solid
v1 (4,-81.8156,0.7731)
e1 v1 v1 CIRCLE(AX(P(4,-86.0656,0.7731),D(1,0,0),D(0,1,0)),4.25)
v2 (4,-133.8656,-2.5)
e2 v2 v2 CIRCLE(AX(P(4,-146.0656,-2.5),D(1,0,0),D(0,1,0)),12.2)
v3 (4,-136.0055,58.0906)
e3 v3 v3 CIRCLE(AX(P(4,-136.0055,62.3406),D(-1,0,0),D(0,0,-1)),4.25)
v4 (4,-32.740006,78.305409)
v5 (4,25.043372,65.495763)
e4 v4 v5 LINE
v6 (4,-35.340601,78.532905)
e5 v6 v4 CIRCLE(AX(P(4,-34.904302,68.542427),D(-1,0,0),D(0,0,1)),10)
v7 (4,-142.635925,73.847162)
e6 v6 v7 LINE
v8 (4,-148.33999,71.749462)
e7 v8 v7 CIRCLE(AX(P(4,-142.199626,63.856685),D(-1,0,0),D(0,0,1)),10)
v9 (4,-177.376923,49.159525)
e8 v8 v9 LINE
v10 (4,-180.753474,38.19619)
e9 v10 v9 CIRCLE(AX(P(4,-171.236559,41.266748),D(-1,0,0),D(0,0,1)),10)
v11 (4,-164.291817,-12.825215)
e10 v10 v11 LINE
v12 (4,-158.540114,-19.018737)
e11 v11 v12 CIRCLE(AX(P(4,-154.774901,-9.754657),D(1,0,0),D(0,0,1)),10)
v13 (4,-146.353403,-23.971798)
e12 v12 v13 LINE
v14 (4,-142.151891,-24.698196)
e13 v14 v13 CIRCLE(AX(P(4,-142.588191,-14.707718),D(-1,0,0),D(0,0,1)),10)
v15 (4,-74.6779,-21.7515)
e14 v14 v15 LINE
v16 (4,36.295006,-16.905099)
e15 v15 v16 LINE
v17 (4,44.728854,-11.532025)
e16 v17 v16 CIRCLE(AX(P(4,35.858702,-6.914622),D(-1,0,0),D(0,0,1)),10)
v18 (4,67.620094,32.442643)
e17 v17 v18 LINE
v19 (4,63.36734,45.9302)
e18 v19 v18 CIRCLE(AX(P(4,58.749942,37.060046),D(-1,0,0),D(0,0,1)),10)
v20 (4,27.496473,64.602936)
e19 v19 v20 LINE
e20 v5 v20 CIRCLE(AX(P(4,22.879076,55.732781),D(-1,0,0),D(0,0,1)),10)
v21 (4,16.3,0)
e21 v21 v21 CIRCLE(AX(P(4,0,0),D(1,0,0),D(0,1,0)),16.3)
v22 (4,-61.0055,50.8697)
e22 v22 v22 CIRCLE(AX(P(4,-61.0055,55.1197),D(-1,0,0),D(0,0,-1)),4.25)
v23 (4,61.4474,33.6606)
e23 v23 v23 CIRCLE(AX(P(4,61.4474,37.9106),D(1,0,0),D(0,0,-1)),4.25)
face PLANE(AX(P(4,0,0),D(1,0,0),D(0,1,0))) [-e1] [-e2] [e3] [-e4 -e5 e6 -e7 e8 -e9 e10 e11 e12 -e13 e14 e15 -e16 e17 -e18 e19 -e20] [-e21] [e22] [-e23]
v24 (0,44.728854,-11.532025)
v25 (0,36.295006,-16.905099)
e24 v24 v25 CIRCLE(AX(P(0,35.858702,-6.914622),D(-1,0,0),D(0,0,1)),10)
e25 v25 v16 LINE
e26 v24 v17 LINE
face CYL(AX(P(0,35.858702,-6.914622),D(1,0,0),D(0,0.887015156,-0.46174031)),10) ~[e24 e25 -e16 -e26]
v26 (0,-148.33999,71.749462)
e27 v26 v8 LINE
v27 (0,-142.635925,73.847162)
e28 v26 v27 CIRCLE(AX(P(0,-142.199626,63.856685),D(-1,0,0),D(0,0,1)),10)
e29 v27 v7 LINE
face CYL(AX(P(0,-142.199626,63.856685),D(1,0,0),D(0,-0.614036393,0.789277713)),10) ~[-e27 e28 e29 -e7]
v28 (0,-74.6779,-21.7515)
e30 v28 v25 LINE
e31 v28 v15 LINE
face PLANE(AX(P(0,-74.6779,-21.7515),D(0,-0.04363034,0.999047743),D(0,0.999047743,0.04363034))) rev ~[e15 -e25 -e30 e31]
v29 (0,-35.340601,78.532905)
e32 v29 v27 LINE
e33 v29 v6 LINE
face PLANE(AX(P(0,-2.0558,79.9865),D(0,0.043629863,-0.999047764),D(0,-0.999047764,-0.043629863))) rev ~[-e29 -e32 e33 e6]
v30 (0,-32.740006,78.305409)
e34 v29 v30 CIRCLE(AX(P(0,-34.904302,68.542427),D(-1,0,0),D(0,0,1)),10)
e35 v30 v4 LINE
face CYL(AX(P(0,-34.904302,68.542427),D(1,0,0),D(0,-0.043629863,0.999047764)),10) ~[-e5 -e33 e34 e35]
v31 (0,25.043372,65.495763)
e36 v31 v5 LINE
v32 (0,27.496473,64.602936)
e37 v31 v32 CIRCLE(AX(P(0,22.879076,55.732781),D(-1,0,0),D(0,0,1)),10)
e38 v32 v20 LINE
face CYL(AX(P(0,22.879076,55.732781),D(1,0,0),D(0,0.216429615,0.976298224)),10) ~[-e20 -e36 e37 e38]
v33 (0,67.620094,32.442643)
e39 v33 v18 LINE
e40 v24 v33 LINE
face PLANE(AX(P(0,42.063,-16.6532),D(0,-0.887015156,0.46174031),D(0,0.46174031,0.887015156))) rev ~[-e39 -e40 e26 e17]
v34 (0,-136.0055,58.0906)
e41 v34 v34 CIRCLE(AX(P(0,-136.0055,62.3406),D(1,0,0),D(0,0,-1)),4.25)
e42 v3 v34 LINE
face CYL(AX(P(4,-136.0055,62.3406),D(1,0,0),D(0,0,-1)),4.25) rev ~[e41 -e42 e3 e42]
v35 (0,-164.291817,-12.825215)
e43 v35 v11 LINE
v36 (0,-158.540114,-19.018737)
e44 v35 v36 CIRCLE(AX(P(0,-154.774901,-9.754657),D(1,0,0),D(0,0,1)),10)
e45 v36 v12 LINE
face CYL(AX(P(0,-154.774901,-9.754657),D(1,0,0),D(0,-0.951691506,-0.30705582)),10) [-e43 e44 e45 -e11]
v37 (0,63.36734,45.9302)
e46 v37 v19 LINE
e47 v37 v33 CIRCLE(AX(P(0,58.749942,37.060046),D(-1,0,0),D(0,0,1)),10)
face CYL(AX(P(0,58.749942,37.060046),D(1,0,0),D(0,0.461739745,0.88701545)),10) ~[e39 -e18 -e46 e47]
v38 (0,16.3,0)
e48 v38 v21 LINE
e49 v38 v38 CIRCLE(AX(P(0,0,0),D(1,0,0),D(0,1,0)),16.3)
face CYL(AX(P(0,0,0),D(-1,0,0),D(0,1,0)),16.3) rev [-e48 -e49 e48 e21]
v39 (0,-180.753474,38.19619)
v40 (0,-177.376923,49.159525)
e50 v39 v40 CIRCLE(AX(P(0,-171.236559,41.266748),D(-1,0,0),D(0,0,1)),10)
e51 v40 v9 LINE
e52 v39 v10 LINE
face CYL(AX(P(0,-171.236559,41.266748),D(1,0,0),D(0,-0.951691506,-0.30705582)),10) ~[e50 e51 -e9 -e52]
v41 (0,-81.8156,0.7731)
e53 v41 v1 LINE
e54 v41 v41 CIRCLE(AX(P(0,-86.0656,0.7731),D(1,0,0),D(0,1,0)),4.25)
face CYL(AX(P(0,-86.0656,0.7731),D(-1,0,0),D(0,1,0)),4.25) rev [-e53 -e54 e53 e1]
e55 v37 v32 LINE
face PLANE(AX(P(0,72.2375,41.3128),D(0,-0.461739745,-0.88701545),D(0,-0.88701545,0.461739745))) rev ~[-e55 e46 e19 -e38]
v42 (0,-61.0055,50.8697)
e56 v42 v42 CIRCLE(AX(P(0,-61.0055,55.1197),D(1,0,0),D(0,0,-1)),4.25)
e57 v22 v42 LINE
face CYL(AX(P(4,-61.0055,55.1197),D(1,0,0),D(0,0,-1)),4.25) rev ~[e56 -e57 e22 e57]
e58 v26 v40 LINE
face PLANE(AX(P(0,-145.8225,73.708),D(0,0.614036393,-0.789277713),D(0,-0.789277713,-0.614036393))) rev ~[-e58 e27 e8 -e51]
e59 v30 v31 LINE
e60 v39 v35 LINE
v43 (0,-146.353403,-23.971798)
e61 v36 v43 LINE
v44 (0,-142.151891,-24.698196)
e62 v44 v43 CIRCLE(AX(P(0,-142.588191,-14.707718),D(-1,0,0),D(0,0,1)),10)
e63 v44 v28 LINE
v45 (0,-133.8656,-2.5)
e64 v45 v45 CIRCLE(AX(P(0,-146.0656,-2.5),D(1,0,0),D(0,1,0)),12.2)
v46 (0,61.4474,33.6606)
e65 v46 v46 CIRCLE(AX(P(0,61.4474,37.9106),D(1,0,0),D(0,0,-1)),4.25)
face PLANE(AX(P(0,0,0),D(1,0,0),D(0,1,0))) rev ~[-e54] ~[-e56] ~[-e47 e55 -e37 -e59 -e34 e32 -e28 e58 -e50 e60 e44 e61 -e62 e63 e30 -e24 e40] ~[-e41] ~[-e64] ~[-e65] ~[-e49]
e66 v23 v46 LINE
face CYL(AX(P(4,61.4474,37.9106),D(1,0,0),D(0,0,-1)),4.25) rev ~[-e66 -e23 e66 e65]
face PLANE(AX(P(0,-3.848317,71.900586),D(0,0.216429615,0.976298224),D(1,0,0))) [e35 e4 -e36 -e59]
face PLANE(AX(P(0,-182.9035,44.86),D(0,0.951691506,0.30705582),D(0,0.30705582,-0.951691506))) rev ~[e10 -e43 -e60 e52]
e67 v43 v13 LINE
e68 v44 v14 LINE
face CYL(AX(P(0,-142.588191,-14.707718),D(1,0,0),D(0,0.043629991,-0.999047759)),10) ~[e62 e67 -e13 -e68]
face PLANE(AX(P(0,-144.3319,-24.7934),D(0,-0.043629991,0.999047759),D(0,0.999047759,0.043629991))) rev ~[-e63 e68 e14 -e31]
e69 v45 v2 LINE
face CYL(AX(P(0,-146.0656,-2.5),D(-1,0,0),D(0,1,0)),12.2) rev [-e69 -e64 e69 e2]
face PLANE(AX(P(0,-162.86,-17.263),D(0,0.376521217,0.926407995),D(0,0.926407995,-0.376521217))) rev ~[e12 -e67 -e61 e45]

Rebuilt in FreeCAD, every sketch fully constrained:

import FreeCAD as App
import Part
import Sketcher
from FreeCAD import Vector


def edges_at(feature, points):
    """Names of the edges that pass closest to the given points."""
    edges = feature.Shape.Edges
    near = lambda p: min(range(len(edges)), key=lambda i: edges[i].distToShape(Part.Vertex(*p))[0])
    return sorted({f"Edge{near(p) + 1}" for p in points})

doc = App.newDocument("Part")
body = doc.addObject("PartDesign::Body", "Body")

# Sketch on YZ plane
sketch1 = body.newObject("Sketcher::SketchObject", "Sketch")
sketch1.AttachmentSupport = (doc.getObject("YZ_Plane"), [""])
sketch1.MapMode = "FlatFace"
sketch1.addGeometry(Part.LineSegment(Vector(-182.9035, 44.86, 0), Vector(-162.86, -17.263, 0)), False)
sketch1.addGeometry(Part.LineSegment(Vector(-162.86, -17.263, 0), Vector(-144.3319, -24.7934, 0)), False)
sketch1.addGeometry(Part.LineSegment(Vector(-144.3319, -24.7934, 0), Vector(-74.6779, -21.7515, 0)), False)
sketch1.addGeometry(Part.LineSegment(Vector(-74.6779, -21.7515, 0), Vector(42.063, -16.6532, 0)), False)
sketch1.addGeometry(Part.LineSegment(Vector(42.063, -16.6532, 0), Vector(72.2375, 41.3128, 0)), False)
sketch1.addGeometry(Part.LineSegment(Vector(72.2375, 41.3128, 0), Vector(-2.0558, 79.9865, 0)), False)
sketch1.addGeometry(Part.LineSegment(Vector(-2.0558, 79.9865, 0), Vector(-145.8225, 73.708, 0)), False)
sketch1.addGeometry(Part.LineSegment(Vector(-145.8225, 73.708, 0), Vector(-182.9035, 44.86, 0)), False)
sketch1.addGeometry(Part.Circle(Vector(-146.0656, -2.5, 0), Vector(0, 0, 1), 12.2), False)
sketch1.addGeometry(Part.Circle(Vector(-86.0656, 0.7731, 0), Vector(0, 0, 1), 4.25), False)
sketch1.addGeometry(Part.Circle(Vector(0, 0, 0), Vector(0, 0, 1), 16.3), False)
sketch1.addConstraint(Sketcher.Constraint("Coincident", 0, 2, 1, 1))
sketch1.addConstraint(Sketcher.Constraint("Coincident", 1, 2, 2, 1))
sketch1.addConstraint(Sketcher.Constraint("Coincident", 2, 2, 3, 1))
sketch1.addConstraint(Sketcher.Constraint("Coincident", 3, 2, 4, 1))
sketch1.addConstraint(Sketcher.Constraint("Coincident", 4, 2, 5, 1))
sketch1.addConstraint(Sketcher.Constraint("Coincident", 5, 2, 6, 1))
sketch1.addConstraint(Sketcher.Constraint("Coincident", 6, 2, 7, 1))
sketch1.addConstraint(Sketcher.Constraint("Coincident", 7, 2, 0, 1))
sketch1.addConstraint(Sketcher.Constraint("Coincident", 10, 3, -1, 1))
sketch1.addConstraint(Sketcher.Constraint("Diameter", 8, 24.4))
sketch1.addConstraint(Sketcher.Constraint("Diameter", 9, 8.5))
sketch1.addConstraint(Sketcher.Constraint("Diameter", 10, 32.6))
sketch1.addConstraint(Sketcher.Constraint("Distance", 1, 20.0))
sketch1.addConstraint(Sketcher.Constraint("DistanceX", 8, 3, 9, 3, 60.0))
sketch1.addConstraint(Sketcher.Constraint("DistanceY", 8, 3, -1, 1, 2.5))
sketch1.addConstraint(Sketcher.Constraint("DistanceX", 0, 2, -1, 1, 162.86))
sketch1.addConstraint(Sketcher.Constraint("DistanceY", -1, 1, 7, 2, 44.86))
sketch1.addConstraint(Sketcher.Constraint("Distance", 7, 46.981))
sketch1.addConstraint(Sketcher.Constraint("DistanceY", -1, 1, 9, 3, 0.773))
sketch1.addConstraint(Sketcher.Constraint("DistanceY", 0, 2, -1, 1, 17.263))
sketch1.addConstraint(Sketcher.Constraint("DistanceX", 1, 2, -1, 1, 144.332))
sketch1.addConstraint(Sketcher.Constraint("DistanceX", 2, 2, -1, 1, 74.678))
sketch1.addConstraint(Sketcher.Constraint("DistanceX", -1, 1, 3, 2, 42.063))
sketch1.addConstraint(Sketcher.Constraint("DistanceY", -1, 1, 6, 2, 73.708))
sketch1.addConstraint(Sketcher.Constraint("DistanceY", 1, 2, 2, 2, 3.042))
sketch1.addConstraint(Sketcher.Constraint("DistanceY", 3, 2, 4, 2, 57.966))
sketch1.addConstraint(Sketcher.Constraint("DistanceX", 9, 3, 4, 2, 158.303))
sketch1.addConstraint(Sketcher.Constraint("DistanceX", 2, 2, 5, 2, 72.622))
sketch1.addConstraint(Sketcher.Constraint("DistanceY", 2, 2, 5, 2, 101.738))
sketch1.addConstraint(Sketcher.Constraint("DistanceX", 8, 3, 6, 2, 0.243))
sketch1.addConstraint(Sketcher.Constraint("Distance", 0, 65.2764))
sketch1.addConstraint(Sketcher.Constraint("Distance", 3, 116.8522))
pad1 = body.newObject("PartDesign::Pad", "Pad")
pad1.Profile = sketch1
pad1.Length = 4
doc.recompute()

fillet = body.newObject("PartDesign::Fillet", "Fillet")
fillet.Base = (pad1, edges_at(pad1, [
    (2, 72.237, 41.313),
    (2, 42.063, -16.653),
    (2, -144.332, -24.793),
    (2, -162.86, -17.263),
    (2, -182.904, 44.86),
    (2, -145.822, 73.708),
]))
fillet.Radius = 10
doc.recompute()

chamfer = body.newObject("PartDesign::Chamfer", "Chamfer")
chamfer.Base = (fillet, edges_at(fillet, [(2, -2.056, 79.987)]))
chamfer.Size = 32
doc.recompute()

fillet2 = body.newObject("PartDesign::Fillet", "Fillet001")
fillet2.Base = (chamfer, edges_at(chamfer, [(2, 26.329, 65.211), (2, -34.025, 78.59)]))
fillet2.Radius = 10

# Sketch on YZ plane
sketch2 = body.newObject("Sketcher::SketchObject", "Sketch001")
sketch2.AttachmentSupport = (doc.getObject("YZ_Plane"), [""])
sketch2.MapMode = "FlatFace"
sketch2.AttachmentOffset = App.Placement(Vector(0, 0, 4), App.Rotation())
sketch2.addGeometry(Part.Circle(Vector(0, 0, 0), Vector(0, 0, 1), 16.3), False)
sketch2.addGeometry(Part.Circle(Vector(-136, 62.3, 0), Vector(0, 0, 1), 4.2), False)
sketch2.addGeometry(Part.Circle(Vector(-61, 55.1, 0), Vector(0, 0, 1), 4.2), False)
sketch2.addGeometry(Part.Circle(Vector(61.4, 37.9, 0), Vector(0, 0, 1), 4.2), False)
sketch2.addConstraint(Sketcher.Constraint("Coincident", 0, 3, -1, 1))
sketch2.addConstraint(Sketcher.Constraint("Equal", 1, 2))
sketch2.addConstraint(Sketcher.Constraint("Equal", 2, 3))
sketch2.addConstraint(Sketcher.Constraint("Diameter", 0, 32.6))
sketch2.addConstraint(Sketcher.Constraint("Diameter", 1, 8.5))
sketch2.addConstraint(Sketcher.Constraint("DistanceX", 1, 3, 2, 3, 75.0))
sketch2.addConstraint(Sketcher.Constraint("DistanceY", 3, 3, 1, 3, 24.43))
sketch2.addConstraint(Sketcher.Constraint("DistanceY", 2, 3, 1, 3, 7.221))
sketch2.addConstraint(Sketcher.Constraint("DistanceX", 2, 3, 3, 3, 122.453))
sketch2.addConstraint(Sketcher.Constraint("DistanceX", 1, 3, -1, 1, 136.0055))
sketch2.addConstraint(Sketcher.Constraint("DistanceY", -1, 1, 1, 3, 62.3406))
pocket1 = body.newObject("PartDesign::Pocket", "Pocket")
pocket1.Profile = sketch2
pocket1.Length = 9.5

doc.recompute()
